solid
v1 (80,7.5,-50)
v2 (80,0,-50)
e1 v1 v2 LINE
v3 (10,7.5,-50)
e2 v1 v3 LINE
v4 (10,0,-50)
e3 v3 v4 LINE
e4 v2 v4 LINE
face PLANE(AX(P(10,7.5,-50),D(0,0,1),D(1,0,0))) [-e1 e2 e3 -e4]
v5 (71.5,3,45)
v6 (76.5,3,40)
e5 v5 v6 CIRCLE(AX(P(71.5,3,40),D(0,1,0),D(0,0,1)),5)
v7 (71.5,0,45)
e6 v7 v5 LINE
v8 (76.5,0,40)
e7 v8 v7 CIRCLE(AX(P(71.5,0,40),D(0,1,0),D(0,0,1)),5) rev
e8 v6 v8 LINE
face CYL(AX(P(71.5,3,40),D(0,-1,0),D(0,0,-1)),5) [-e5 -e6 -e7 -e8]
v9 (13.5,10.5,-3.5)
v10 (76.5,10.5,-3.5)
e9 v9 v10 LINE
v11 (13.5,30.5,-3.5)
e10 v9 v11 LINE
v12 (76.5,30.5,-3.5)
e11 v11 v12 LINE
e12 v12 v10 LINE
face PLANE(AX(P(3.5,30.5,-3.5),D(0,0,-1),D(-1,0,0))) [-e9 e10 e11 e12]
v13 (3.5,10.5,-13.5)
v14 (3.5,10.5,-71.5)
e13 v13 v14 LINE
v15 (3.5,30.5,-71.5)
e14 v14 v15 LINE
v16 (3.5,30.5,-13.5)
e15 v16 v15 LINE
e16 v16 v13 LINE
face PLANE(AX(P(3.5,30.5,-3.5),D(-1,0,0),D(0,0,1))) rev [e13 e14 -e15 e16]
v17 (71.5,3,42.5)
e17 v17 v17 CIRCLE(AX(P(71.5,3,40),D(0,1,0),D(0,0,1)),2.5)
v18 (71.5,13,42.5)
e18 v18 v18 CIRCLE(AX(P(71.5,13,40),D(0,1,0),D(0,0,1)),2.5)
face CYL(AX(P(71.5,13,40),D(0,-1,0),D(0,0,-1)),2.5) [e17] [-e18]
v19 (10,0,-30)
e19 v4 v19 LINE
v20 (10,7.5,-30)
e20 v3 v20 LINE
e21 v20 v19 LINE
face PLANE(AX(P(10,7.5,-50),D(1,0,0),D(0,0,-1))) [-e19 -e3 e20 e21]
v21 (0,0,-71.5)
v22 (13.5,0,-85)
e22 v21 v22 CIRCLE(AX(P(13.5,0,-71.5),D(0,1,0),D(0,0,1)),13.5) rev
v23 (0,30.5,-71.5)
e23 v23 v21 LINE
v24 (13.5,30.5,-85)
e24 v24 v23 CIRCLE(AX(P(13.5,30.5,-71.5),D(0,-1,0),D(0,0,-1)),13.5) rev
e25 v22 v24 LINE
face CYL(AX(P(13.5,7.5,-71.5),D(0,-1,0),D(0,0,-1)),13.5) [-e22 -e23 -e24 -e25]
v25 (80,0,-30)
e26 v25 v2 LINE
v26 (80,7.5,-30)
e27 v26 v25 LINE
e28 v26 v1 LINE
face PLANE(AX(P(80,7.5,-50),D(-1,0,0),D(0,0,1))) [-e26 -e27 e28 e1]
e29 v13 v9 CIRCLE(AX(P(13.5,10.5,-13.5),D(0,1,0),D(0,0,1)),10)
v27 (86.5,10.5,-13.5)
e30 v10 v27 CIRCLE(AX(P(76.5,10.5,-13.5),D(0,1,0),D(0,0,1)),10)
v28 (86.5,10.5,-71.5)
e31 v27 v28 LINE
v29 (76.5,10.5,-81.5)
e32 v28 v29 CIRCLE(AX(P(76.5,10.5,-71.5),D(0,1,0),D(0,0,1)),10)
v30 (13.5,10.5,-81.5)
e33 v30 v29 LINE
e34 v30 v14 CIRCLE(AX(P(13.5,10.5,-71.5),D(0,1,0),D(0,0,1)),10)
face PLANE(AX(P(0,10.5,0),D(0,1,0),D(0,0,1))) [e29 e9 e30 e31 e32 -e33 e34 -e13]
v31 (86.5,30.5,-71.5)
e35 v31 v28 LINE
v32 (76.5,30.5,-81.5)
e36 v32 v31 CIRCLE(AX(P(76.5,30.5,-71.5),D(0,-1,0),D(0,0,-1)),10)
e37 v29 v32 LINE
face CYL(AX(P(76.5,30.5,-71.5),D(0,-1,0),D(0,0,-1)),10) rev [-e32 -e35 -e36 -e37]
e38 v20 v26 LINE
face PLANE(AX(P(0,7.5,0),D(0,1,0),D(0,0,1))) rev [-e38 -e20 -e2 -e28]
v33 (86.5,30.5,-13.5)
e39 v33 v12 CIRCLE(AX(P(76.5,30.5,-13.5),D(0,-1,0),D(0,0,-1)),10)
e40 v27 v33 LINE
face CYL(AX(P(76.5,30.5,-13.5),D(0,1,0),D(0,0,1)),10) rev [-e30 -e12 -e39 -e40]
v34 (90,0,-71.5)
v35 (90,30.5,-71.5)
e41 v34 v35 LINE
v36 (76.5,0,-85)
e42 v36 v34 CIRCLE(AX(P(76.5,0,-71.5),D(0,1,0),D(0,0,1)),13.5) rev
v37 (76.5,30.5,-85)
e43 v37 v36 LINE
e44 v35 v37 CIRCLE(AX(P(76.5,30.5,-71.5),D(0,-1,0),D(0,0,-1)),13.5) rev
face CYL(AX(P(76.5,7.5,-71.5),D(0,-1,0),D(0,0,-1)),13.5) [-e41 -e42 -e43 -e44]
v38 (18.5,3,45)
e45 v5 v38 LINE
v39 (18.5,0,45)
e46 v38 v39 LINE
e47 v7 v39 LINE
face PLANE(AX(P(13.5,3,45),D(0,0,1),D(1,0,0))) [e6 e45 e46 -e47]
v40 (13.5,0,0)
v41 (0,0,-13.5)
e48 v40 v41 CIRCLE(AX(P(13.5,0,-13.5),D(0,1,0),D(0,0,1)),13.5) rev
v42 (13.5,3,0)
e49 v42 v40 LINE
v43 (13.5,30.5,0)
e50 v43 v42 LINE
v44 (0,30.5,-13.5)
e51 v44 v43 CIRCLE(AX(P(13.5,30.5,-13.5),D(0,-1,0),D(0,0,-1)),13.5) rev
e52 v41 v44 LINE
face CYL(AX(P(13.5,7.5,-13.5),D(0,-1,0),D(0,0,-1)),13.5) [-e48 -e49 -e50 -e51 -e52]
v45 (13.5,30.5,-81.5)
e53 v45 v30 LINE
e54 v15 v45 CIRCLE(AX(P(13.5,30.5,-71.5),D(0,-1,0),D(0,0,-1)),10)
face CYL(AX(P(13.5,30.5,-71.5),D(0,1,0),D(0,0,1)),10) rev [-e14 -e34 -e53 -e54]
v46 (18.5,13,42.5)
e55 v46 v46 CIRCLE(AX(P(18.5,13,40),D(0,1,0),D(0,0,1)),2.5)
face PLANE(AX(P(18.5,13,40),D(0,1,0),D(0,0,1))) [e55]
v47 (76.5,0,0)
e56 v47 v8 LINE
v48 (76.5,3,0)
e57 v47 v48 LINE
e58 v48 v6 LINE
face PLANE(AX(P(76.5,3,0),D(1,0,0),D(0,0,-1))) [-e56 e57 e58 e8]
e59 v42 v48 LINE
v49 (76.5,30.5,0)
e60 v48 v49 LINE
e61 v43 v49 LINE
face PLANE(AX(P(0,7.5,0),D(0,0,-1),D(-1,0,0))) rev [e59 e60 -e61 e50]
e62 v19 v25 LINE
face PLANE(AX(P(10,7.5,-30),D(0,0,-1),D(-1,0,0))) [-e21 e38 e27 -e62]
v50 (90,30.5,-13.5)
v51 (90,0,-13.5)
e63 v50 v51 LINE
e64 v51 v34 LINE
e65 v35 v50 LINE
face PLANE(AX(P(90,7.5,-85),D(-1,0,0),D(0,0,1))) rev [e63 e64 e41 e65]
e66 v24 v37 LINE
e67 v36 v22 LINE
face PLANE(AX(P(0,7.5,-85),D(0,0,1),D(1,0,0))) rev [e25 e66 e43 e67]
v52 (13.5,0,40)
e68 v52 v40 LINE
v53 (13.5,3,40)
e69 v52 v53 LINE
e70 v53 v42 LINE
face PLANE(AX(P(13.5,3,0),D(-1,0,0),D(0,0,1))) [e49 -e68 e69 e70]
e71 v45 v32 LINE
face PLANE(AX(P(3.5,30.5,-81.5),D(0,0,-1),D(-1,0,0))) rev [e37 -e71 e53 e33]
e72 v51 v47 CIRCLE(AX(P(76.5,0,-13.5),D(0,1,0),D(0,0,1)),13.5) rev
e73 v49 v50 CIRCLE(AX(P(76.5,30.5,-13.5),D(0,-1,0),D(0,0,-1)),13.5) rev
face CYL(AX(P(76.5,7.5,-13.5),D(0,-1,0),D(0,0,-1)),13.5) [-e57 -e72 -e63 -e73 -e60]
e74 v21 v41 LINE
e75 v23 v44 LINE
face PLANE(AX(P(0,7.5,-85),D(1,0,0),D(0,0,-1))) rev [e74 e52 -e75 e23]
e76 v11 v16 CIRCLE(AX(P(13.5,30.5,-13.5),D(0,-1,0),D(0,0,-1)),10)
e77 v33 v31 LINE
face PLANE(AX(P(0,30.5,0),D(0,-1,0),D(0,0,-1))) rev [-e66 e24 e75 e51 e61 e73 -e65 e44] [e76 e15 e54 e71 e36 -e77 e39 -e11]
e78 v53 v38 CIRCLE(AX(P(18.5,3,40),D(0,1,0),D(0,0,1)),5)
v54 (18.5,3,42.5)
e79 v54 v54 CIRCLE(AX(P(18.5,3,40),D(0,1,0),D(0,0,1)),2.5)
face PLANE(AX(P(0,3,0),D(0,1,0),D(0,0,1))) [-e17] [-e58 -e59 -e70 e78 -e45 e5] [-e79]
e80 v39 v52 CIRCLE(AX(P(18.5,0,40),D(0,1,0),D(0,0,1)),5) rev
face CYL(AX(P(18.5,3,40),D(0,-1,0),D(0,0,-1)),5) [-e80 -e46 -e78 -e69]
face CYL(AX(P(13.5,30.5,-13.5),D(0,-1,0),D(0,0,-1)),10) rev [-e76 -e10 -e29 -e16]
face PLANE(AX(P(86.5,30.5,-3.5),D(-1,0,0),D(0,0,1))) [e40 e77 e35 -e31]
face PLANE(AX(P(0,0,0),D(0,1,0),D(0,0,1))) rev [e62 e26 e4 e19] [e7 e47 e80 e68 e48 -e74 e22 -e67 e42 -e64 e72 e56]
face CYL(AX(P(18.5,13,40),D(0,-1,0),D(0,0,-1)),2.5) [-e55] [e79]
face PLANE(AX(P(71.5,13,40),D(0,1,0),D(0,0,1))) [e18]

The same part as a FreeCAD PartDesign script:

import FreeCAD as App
import Part
import Sketcher

V = App.Vector


def edges_at(feature, points):
    """Names of the edges that pass closest to the given points."""
    edges = feature.Shape.Edges
    near = lambda p: min(range(len(edges)), key=lambda i: edges[i].distToShape(Part.Vertex(*p))[0])
    return sorted({f"Edge{near(p) + 1}" for p in points})

doc = App.newDocument("Part")
body = doc.addObject("PartDesign::Body", "Body")

# Sketch on XZ plane
sketch1 = body.newObject("Sketcher::SketchObject", "Sketch")
sketch1.AttachmentSupport = (doc.getObject("XZ_Plane"), [""])
sketch1.MapMode = "FlatFace"
sketch1.addGeometry([
    Part.LineSegment(V(0, -85, 0), V(0, 0, 0)),  # 0
    Part.LineSegment(V(0, 0, 0), V(90, 0, 0)),  # 1
    Part.LineSegment(V(90, 0, 0), V(90, -85, 0)),  # 2
    Part.LineSegment(V(90, -85, 0), V(0, -85, 0)),  # 3
    Part.LineSegment(V(80, -30, 0), V(10, -30, 0)),  # 4
    Part.LineSegment(V(10, -30, 0), V(10, -50, 0)),  # 5
    Part.LineSegment(V(10, -50, 0), V(80, -50, 0)),  # 6
    Part.LineSegment(V(80, -50, 0), V(80, -30, 0)),  # 7
], False)
sketch1.addConstraint([
    Sketcher.Constraint("Coincident", 0, 2, 1, 1),
    Sketcher.Constraint("Coincident", 1, 2, 2, 1),
    Sketcher.Constraint("Coincident", 2, 2, 3, 1),
    Sketcher.Constraint("Coincident", 3, 2, 0, 1),
    Sketcher.Constraint("Coincident", 4, 2, 5, 1),
    Sketcher.Constraint("Coincident", 5, 2, 6, 1),
    Sketcher.Constraint("Coincident", 6, 2, 7, 1),
    Sketcher.Constraint("Coincident", 7, 2, 4, 1),
    Sketcher.Constraint("Vertical", 0),
    Sketcher.Constraint("Horizontal", 1),
    Sketcher.Constraint("Vertical", 2),
    Sketcher.Constraint("Horizontal", 3),
    Sketcher.Constraint("Horizontal", 4),
    Sketcher.Constraint("Vertical", 5),
    Sketcher.Constraint("Horizontal", 6),
    Sketcher.Constraint("Vertical", 7),
    Sketcher.Constraint("Coincident", 0, 2, -1, 1),
    Sketcher.Constraint("DistanceX", 1, 1, 1, 2, 90.0),
    Sketcher.Constraint("DistanceX", 4, 2, 4, 1, 70.0),
    Sketcher.Constraint("DistanceY", 0, 1, 0, 2, 85.0),
    Sketcher.Constraint("DistanceY", 5, 2, 5, 1, 20.0),
    Sketcher.Constraint("DistanceX", -1, 1, 4, 2, 10.0),
    Sketcher.Constraint("DistanceY", 4, 2, -1, 1, 30.0),
])
pad1 = body.newObject("PartDesign::Pad", "Pad")
pad1.Profile = sketch1
pad1.Length = 7.5
pad1.Reversed = True

# Sketch on XZ plane
sketch2 = body.newObject("Sketcher::SketchObject", "Sketch001")
sketch2.AttachmentSupport = (doc.getObject("XZ_Plane"), [""])
sketch2.MapMode = "FlatFace"
sketch2.AttachmentOffset = App.Placement(V(0, 0, -7.5), App.Rotation())
sketch2.addGeometry([
    Part.LineSegment(V(0, -85, 0), V(0, 0, 0)),
    Part.LineSegment(V(0, 0, 0), V(90, 0, 0)),
    Part.LineSegment(V(90, 0, 0), V(90, -85, 0)),
    Part.LineSegment(V(90, -85, 0), V(0, -85, 0)),
], False)
sketch2.addConstraint([
    Sketcher.Constraint("Coincident", 0, 2, 1, 1),
    Sketcher.Constraint("Coincident", 1, 2, 2, 1),
    Sketcher.Constraint("Coincident", 2, 2, 3, 1),
    Sketcher.Constraint("Coincident", 3, 2, 0, 1),
    Sketcher.Constraint("Vertical", 0),
    Sketcher.Constraint("Horizontal", 1),
    Sketcher.Constraint("Vertical", 2),
    Sketcher.Constraint("Horizontal", 3),
    Sketcher.Constraint("Coincident", 0, 2, -1, 1),
    Sketcher.Constraint("DistanceX", 1, 1, 1, 2, 90.0),
    Sketcher.Constraint("DistanceY", 0, 1, 0, 2, 85.0),
])
pad2 = body.newObject("PartDesign::Pad", "Pad001")
pad2.Profile = sketch2
pad2.Length = 3
pad2.Reversed = True

# Sketch on XZ plane
sketch3 = body.newObject("Sketcher::SketchObject", "Sketch002")
sketch3.AttachmentSupport = (doc.getObject("XZ_Plane"), [""])
sketch3.MapMode = "FlatFace"
sketch3.AttachmentOffset = App.Placement(V(0, 0, -10.5), App.Rotation())
sketch3.addGeometry([
    Part.LineSegment(V(0, -85, 0), V(0, 0, 0)),  # 0
    Part.LineSegment(V(0, 0, 0), V(90, 0, 0)),  # 1
    Part.LineSegment(V(90, 0, 0), V(90, -85, 0)),  # 2
    Part.LineSegment(V(90, -85, 0), V(0, -85, 0)),  # 3
    Part.LineSegment(V(86, -4, 0), V(4, -4, 0)),  # 4
    Part.LineSegment(V(4, -4, 0), V(4, -82, 0)),  # 5
    Part.LineSegment(V(4, -82, 0), V(86, -82, 0)),  # 6
    Part.LineSegment(V(86, -82, 0), V(86, -4, 0)),  # 7
], False)
sketch3.addConstraint([
    Sketcher.Constraint("Coincident", 0, 2, 1, 1),
    Sketcher.Constraint("Coincident", 1, 2, 2, 1),
    Sketcher.Constraint("Coincident", 2, 2, 3, 1),
    Sketcher.Constraint("Coincident", 3, 2, 0, 1),
    Sketcher.Constraint("Coincident", 4, 2, 5, 1),
    Sketcher.Constraint("Coincident", 5, 2, 6, 1),
    Sketcher.Constraint("Coincident", 6, 2, 7, 1),
    Sketcher.Constraint("Coincident", 7, 2, 4, 1),
    Sketcher.Constraint("Vertical", 0),
    Sketcher.Constraint("Horizontal", 1),
    Sketcher.Constraint("Vertical", 2),
    Sketcher.Constraint("Horizontal", 3),
    Sketcher.Constraint("Horizontal", 4),
    Sketcher.Constraint("Vertical", 5),
    Sketcher.Constraint("Horizontal", 6),
    Sketcher.Constraint("Vertical", 7),
    Sketcher.Constraint("Coincident", 0, 2, -1, 1),
    Sketcher.Constraint("DistanceX", 1, 1, 1, 2, 90.0),
    Sketcher.Constraint("DistanceX", 4, 2, 4, 1, 83.0),
    Sketcher.Constraint("DistanceY", 0, 1, 0, 2, 85.0),
    Sketcher.Constraint("DistanceY", 5, 2, 5, 1, 78.0),
    Sketcher.Constraint("DistanceX", -1, 1, 4, 2, 3.5),
    Sketcher.Constraint("DistanceY", 4, 2, -1, 1, 3.5),
])
pad3 = body.newObject("PartDesign::Pad", "Pad002")
pad3.Profile = sketch3
pad3.Length = 20
pad3.Reversed = True
doc.recompute()

fillet = body.newObject("PartDesign::Fillet", "Fillet")
fillet.Base = (pad3, edges_at(pad3, [(3.5, 20.5, -81.5)]))
fillet.Radius = 10
doc.recompute()

fillet2 = body.newObject("PartDesign::Fillet", "Fillet001")
fillet2.Base = (fillet, edges_at(fillet, [(86.5, 20.5, -81.5)]))
fillet2.Radius = 10
doc.recompute()

fillet3 = body.newObject("PartDesign::Fillet", "Fillet002")
fillet3.Base = (fillet2, edges_at(fillet2, [(3.5, 20.5, -3.5)]))
fillet3.Radius = 10
doc.recompute()

fillet4 = body.newObject("PartDesign::Fillet", "Fillet003")
fillet4.Base = (fillet3, edges_at(fillet3, [(86.5, 20.5, -3.5)]))
fillet4.Radius = 10
doc.recompute()

fillet5 = body.newObject("PartDesign::Fillet", "Fillet004")
fillet5.Base = (fillet4, edges_at(fillet4, [(0, 15.25, 0)]))
fillet5.Radius = 13.5
doc.recompute()

fillet6 = body.newObject("PartDesign::Fillet", "Fillet005")
fillet6.Base = (fillet5, edges_at(fillet5, [(90, 15.25, 0)]))
fillet6.Radius = 13.5
doc.recompute()

fillet7 = body.newObject("PartDesign::Fillet", "Fillet006")
fillet7.Base = (fillet6, edges_at(fillet6, [(90, 15.25, -85)]))
fillet7.Radius = 13.5
doc.recompute()

fillet8 = body.newObject("PartDesign::Fillet", "Fillet007")
fillet8.Base = (fillet7, edges_at(fillet7, [(0, 15.25, -85)]))
fillet8.Radius = 13.5

# Sketch on XZ plane
sketch4 = body.newObject("Sketcher::SketchObject", "Sketch003")
sketch4.AttachmentSupport = (doc.getObject("XZ_Plane"), [""])
sketch4.MapMode = "FlatFace"
sketch4.addGeometry([
    Part.LineSegment(V(14, 45, 0), V(14, 0, 0)),
    Part.LineSegment(V(14, 0, 0), V(76, 0, 0)),
    Part.LineSegment(V(76, 0, 0), V(76, 45, 0)),
    Part.LineSegment(V(76, 45, 0), V(14, 45, 0)),
], False)
sketch4.addConstraint([
    Sketcher.Constraint("Coincident", 0, 2, 1, 1),
    Sketcher.Constraint("Coincident", 1, 2, 2, 1),
    Sketcher.Constraint("Coincident", 2, 2, 3, 1),
    Sketcher.Constraint("Coincident", 3, 2, 0, 1),
    Sketcher.Constraint("Vertical", 0),
    Sketcher.Constraint("Horizontal", 1),
    Sketcher.Constraint("Vertical", 2),
    Sketcher.Constraint("Horizontal", 3),
    Sketcher.Constraint("PointOnObject", 0, 2, -1),
    Sketcher.Constraint("DistanceX", 1, 1, 1, 2, 63.0),
    Sketcher.Constraint("DistanceY", 0, 2, 0, 1, 45.0),
    Sketcher.Constraint("DistanceX", -1, 1, 0, 2, 13.5),
])
pad4 = body.newObject("PartDesign::Pad", "Pad003")
pad4.Profile = sketch4
pad4.Length = 3
pad4.Reversed = True
doc.recompute()

fillet9 = body.newObject("PartDesign::Fillet", "Fillet008")
fillet9.Base = (pad4, edges_at(pad4, [(13.5, 1.5, 45)]))
fillet9.Radius = 5
doc.recompute()

fillet10 = body.newObject("PartDesign::Fillet", "Fillet009")
fillet10.Base = (fillet9, edges_at(fillet9, [(76.5, 1.5, 45)]))
fillet10.Radius = 5

# Sketch on XZ plane
sketch5 = body.newObject("Sketcher::SketchObject", "Sketch004")
sketch5.AttachmentSupport = (doc.getObject("XZ_Plane"), [""])
sketch5.MapMode = "FlatFace"
sketch5.AttachmentOffset = App.Placement(V(0, 0, -3), App.Rotation())
sketch5.addGeometry([
    Part.Circle(V(18.5, 40, 0), V(0, 0, 1), 2.5),
    Part.Circle(V(71.5, 40, 0), V(0, 0, 1), 2.5),
], False)
sketch5.addConstraint([
    Sketcher.Constraint("Equal", 0, 1),
    Sketcher.Constraint("Horizontal", 0, 3, 1, 3),
    Sketcher.Constraint("Diameter", 0, 5.0),
    Sketcher.Constraint("DistanceY", -1, 1, 0, 3, 40.0),
    Sketcher.Constraint("DistanceX", 0, 3, 1, 3, 53.0),
    Sketcher.Constraint("DistanceX", -1, 1, 0, 3, 18.5),
])
pad5 = body.newObject("PartDesign::Pad", "Pad004")
pad5.Profile = sketch5
pad5.Length = 10
pad5.Reversed = True

doc.recompute()
